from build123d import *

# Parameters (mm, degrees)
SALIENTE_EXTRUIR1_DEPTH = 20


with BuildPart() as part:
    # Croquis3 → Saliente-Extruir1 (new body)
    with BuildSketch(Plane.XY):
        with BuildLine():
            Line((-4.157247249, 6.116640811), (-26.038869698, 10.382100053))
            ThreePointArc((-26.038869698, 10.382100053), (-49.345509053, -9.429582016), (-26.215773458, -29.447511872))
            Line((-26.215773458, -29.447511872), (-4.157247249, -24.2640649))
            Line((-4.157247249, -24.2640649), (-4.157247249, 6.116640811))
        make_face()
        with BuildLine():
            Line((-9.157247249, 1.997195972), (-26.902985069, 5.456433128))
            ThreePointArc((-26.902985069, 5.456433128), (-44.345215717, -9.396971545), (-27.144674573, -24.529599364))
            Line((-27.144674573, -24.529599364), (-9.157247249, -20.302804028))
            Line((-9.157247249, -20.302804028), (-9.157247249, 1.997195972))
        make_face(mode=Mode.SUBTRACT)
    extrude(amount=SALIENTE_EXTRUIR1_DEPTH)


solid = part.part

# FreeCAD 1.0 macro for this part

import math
import FreeCAD as App
import Part
import Sketcher

doc = App.newDocument("Part")
params = doc.addObject("Spreadsheet::Sheet", "Params")
for row, (alias, value) in enumerate([
    ("sketch1_radius", "20.15 mm"),
    ("sketch1_radius2", "15.15 mm"),
    ("sketch1_height", "22.3 mm"),
    ("pad1_length", "20 mm"),
], start=1):
    params.set(f"A{row}", alias)
    params.set(f"B{row}", "=" + value)
    params.setAlias(f"B{row}", alias)

body = doc.addObject("PartDesign::Body", "Body")

# Sketch on XY plane
sketch1 = doc.addObject("Sketcher::SketchObject", "Sketch")
body.addObject(sketch1)
sketch1.AttachmentSupport = (doc.XY_Plane, [""])
sketch1.MapMode = "FlatFace"
sketch1.addGeometry([
    Part.LineSegment(App.Vector(-4, 6, 0), App.Vector(-26, 10, 0)),  # 0
    Part.ArcOfCircle(Part.Circle(App.Vector(-29, -10, 0), App.Vector(0, 0, 1), 20), math.radians(81), math.radians(279)),  # 1
    Part.LineSegment(App.Vector(-26, -29, 0), App.Vector(-4, -24, 0)),  # 2
    Part.LineSegment(App.Vector(-4, -24, 0), App.Vector(-4, 6, 0)),  # 3
    Part.LineSegment(App.Vector(-27, 5, 0), App.Vector(-9, 2, 0)),  # 4
    Part.LineSegment(App.Vector(-9, 2, 0), App.Vector(-9, -20, 0)),  # 5
    Part.LineSegment(App.Vector(-9, -20, 0), App.Vector(-27, -25, 0)),  # 6
    Part.ArcOfCircle(Part.Circle(App.Vector(-29, -10, 0), App.Vector(0, 0, 1), 15), math.radians(81), math.radians(278)),  # 7
], False)
sketch1.addConstraint([
    Sketcher.Constraint("Coincident", 0, 2, 1, 1),
    Sketcher.Constraint("Coincident", 1, 2, 2, 1),
    Sketcher.Constraint("Coincident", 2, 2, 3, 1),
    Sketcher.Constraint("Coincident", 3, 2, 0, 1),
    Sketcher.Constraint("Coincident", 4, 2, 5, 1),
    Sketcher.Constraint("Coincident", 5, 2, 6, 1),
    Sketcher.Constraint("Coincident", 6, 2, 7, 2),
    Sketcher.Constraint("Coincident", 7, 1, 4, 1),
    Sketcher.Constraint("Vertical", 3),
    Sketcher.Constraint("Vertical", 5),
    Sketcher.Constraint("Coincident", 7, 3, 1, 3),
    Sketcher.Constraint("Parallel", 0, 4),
    Sketcher.Constraint("Parallel", 2, 6),
    Sketcher.Constraint("Radius", 1, 20.15),
    Sketcher.Constraint("Radius", 7, 15.15),
    Sketcher.Constraint("DistanceY", 5, 2, 5, 1, 22.3),
    Sketcher.Constraint("DistanceX", 4, 2, 3, 2, 5.0),
    Sketcher.Constraint("DistanceY", -1, 1, 0, 2, 10.3821),
    Sketcher.Constraint("DistanceY", 6, 2, -1, 1, 24.529599),
    Sketcher.Constraint("DistanceX", 6, 2, 1, 2, 0.928901),
    Sketcher.Constraint("DistanceY", 3, 1, 3, 2, 30.380706),
    Sketcher.Constraint("DistanceX", 0, 2, -1, 1, 26.03887),
    Sketcher.Constraint("DistanceY", -1, 1, 3, 2, 6.116641),
    Sketcher.Constraint("DistanceX", 1, 3, 0, 2, 3.156838),
    Sketcher.Constraint("DistanceX", 1, 3, 2, 2, 25.038461),
])
sketch1.setExpression("Constraints[13]", "Params.sketch1_radius")
sketch1.setExpression("Constraints[14]", "Params.sketch1_radius2")
sketch1.setExpression("Constraints[15]", "Params.sketch1_height")
pad1 = doc.addObject("PartDesign::Pad", "Pad")
body.addObject(pad1)
pad1.Profile = sketch1
pad1.setExpression("Length", "Params.pad1_length")

doc.recompute()
